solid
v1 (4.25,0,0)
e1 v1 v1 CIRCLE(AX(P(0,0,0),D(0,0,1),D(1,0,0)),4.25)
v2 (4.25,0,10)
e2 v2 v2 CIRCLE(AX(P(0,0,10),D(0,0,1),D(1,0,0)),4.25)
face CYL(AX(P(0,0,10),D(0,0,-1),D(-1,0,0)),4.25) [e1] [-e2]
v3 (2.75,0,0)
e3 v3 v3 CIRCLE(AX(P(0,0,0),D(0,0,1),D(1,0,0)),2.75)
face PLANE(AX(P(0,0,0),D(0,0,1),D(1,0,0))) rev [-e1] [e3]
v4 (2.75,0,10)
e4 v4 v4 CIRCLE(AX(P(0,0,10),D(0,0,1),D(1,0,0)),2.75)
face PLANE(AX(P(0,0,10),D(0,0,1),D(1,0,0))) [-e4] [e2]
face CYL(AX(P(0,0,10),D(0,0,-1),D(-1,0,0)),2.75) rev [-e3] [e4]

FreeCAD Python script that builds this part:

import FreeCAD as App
import Part
import Sketcher
Q = App.Units.Quantity

doc = App.newDocument("Part")
body = doc.addObject("PartDesign::Body", "Body")

sketch1 = doc.addObject("Sketcher::SketchObject", "Sketch")
body.addObject(sketch1)
sketch1.AttachmentSupport = (doc.XY_Plane, [""])
sketch1.MapMode = "FlatFace"
sketch1.addGeometry([
    Part.Circle(App.Vector(0, 0, 0), App.Vector(0, 0, 1), 4.2),
    Part.Circle(App.Vector(0, 0, 0), App.Vector(0, 0, 1), 2.8),
], False)
sketch1.addConstraint([
    Sketcher.Constraint("Coincident", 0, 3, -1, 1),
    Sketcher.Constraint("Coincident", 1, 3, -1, 1),
    Sketcher.Constraint("Diameter", 0, Q("8.5 mm")),
    Sketcher.Constraint("Diameter", 1, Q("5.5 mm")),
])
pad1 = doc.addObject("PartDesign::Pad", "Pad")
body.addObject(pad1)
pad1.Profile = sketch1
pad1.Length = 10

doc.recompute()
